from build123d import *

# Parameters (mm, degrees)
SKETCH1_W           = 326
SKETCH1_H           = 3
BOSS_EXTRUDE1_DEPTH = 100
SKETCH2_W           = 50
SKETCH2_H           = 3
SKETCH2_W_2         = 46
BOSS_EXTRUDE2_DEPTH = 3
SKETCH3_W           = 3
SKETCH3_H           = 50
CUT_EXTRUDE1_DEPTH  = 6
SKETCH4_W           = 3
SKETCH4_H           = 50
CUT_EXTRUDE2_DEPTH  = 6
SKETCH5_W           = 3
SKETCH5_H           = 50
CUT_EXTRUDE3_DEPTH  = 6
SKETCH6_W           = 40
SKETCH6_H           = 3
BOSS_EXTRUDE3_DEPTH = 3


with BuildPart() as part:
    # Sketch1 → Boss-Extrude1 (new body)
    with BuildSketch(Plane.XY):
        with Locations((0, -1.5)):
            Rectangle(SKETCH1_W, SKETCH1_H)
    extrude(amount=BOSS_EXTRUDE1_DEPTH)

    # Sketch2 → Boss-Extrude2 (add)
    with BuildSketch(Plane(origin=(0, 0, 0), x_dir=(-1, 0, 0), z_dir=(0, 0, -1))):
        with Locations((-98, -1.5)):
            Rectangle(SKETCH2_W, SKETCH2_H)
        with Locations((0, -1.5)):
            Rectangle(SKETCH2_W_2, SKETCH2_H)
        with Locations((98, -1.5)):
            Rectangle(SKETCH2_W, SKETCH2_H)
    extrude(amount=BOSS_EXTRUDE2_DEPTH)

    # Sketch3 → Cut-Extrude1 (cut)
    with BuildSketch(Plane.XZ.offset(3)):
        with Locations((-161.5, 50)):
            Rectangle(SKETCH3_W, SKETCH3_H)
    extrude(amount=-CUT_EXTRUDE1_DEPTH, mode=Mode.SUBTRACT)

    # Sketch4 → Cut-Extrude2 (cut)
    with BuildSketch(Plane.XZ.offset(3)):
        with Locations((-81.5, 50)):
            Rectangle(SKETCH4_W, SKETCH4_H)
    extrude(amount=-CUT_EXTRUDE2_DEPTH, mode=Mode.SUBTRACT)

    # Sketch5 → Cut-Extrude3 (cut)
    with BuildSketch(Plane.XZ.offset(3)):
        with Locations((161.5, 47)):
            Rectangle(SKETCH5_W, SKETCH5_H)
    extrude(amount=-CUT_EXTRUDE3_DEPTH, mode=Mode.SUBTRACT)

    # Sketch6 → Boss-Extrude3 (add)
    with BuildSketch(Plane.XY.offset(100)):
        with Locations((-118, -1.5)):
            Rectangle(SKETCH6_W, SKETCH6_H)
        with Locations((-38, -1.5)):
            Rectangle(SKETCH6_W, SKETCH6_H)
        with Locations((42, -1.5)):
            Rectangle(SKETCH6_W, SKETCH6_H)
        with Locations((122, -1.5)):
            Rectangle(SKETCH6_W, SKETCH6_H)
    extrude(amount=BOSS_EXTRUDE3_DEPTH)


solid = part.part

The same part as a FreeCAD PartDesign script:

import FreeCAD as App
import Part
import Sketcher

doc = App.newDocument("Part")
params = doc.addObject("Spreadsheet::Sheet", "Params")
for row, (alias, value) in enumerate([
    ("sketch1_width", "326 mm"),
    ("sketch1_height", "3 mm"),
    ("pad1_length", "100 mm"),
    ("sketch2_width", "50 mm"),
    ("sketch2_width2", "46 mm"),
    ("sketch2_height", "3 mm"),
    ("pad2_length", "3 mm"),
    ("sketch3_width", "3 mm"),
    ("sketch3_height", "50 mm"),
    ("pocket1_length", "6 mm"),
    ("sketch4_width", "3 mm"),
    ("sketch4_height", "50 mm"),
    ("pocket2_length", "6 mm"),
    ("sketch5_width", "3 mm"),
    ("sketch5_height", "50 mm"),
    ("pocket3_length", "6 mm"),
    ("sketch6_width", "40 mm"),
    ("sketch6_height", "3 mm"),
    ("pad3_length", "3 mm"),
], start=1):
    params.set(f"A{row}", alias)
    params.set(f"B{row}", "=" + value)
    params.setAlias(f"B{row}", alias)

body = doc.addObject("PartDesign::Body", "Body")

# Sketch on XY plane
sketch1 = doc.addObject("Sketcher::SketchObject", "Sketch")
body.addObject(sketch1)
sketch1.AttachmentSupport = (doc.XY_Plane, [""])
sketch1.MapMode = "FlatFace"
sketch1.addGeometry([
    Part.LineSegment(App.Vector(-163, 0, 0), App.Vector(-163, -3, 0)),
    Part.LineSegment(App.Vector(-163, -3, 0), App.Vector(163, -3, 0)),
    Part.LineSegment(App.Vector(163, -3, 0), App.Vector(163, 0, 0)),
    Part.LineSegment(App.Vector(163, 0, 0), App.Vector(-163, 0, 0)),
], False)
sketch1.addConstraint([
    Sketcher.Constraint("Coincident", 0, 2, 1, 1),
    Sketcher.Constraint("Coincident", 1, 2, 2, 1),
    Sketcher.Constraint("Coincident", 2, 2, 3, 1),
    Sketcher.Constraint("Coincident", 3, 2, 0, 1),
    Sketcher.Constraint("Vertical", 0),
    Sketcher.Constraint("Horizontal", 1),
    Sketcher.Constraint("Vertical", 2),
    Sketcher.Constraint("Horizontal", 3),
    Sketcher.Constraint("Symmetric", 2, 2, 3, 2, -1, 1),
    Sketcher.Constraint("DistanceX", 1, 1, 1, 2, 326.0),
    Sketcher.Constraint("DistanceY", 0, 2, 0, 1, 3.0),
])
sketch1.setExpression("Constraints[9]", "Params.sketch1_width")
sketch1.setExpression("Constraints[10]", "Params.sketch1_height")
pad1 = doc.addObject("PartDesign::Pad", "Pad")
body.addObject(pad1)
pad1.Profile = sketch1
pad1.setExpression("Length", "Params.pad1_length")

# Sketch on XY plane
sketch2 = doc.addObject("Sketcher::SketchObject", "Sketch001")
body.addObject(sketch2)
sketch2.AttachmentSupport = (doc.XY_Plane, [""])
sketch2.MapMode = "FlatFace"
sketch2.addGeometry([
    Part.LineSegment(App.Vector(123, 0, 0), App.Vector(123, -3, 0)),  # 0
    Part.LineSegment(App.Vector(123, -3, 0), App.Vector(73, -3, 0)),  # 1
    Part.LineSegment(App.Vector(73, -3, 0), App.Vector(73, 0, 0)),  # 2
    Part.LineSegment(App.Vector(73, 0, 0), App.Vector(123, 0, 0)),  # 3
    Part.LineSegment(App.Vector(23, 0, 0), App.Vector(23, -3, 0)),  # 4
    Part.LineSegment(App.Vector(23, -3, 0), App.Vector(-23, -3, 0)),  # 5
    Part.LineSegment(App.Vector(-23, -3, 0), App.Vector(-23, 0, 0)),  # 6
    Part.LineSegment(App.Vector(-23, 0, 0), App.Vector(23, 0, 0)),  # 7
    Part.LineSegment(App.Vector(-73, 0, 0), App.Vector(-73, -3, 0)),  # 8
    Part.LineSegment(App.Vector(-73, -3, 0), App.Vector(-123, -3, 0)),  # 9
    Part.LineSegment(App.Vector(-123, -3, 0), App.Vector(-123, 0, 0)),  # 10
    Part.LineSegment(App.Vector(-123, 0, 0), App.Vector(-73, 0, 0)),  # 11
], False)
sketch2.addConstraint([
    Sketcher.Constraint("Coincident", 0, 2, 1, 1),
    Sketcher.Constraint("Coincident", 1, 2, 2, 1),
    Sketcher.Constraint("Coincident", 2, 2, 3, 1),
    Sketcher.Constraint("Coincident", 3, 2, 0, 1),
    Sketcher.Constraint("Coincident", 4, 2, 5, 1),
    Sketcher.Constraint("Coincident", 5, 2, 6, 1),
    Sketcher.Constraint("Coincident", 6, 2, 7, 1),
    Sketcher.Constraint("Coincident", 7, 2, 4, 1),
    Sketcher.Constraint("Coincident", 8, 2, 9, 1),
    Sketcher.Constraint("Coincident", 9, 2, 10, 1),
    Sketcher.Constraint("Coincident", 10, 2, 11, 1),
    Sketcher.Constraint("Coincident", 11, 2, 8, 1),
    Sketcher.Constraint("Vertical", 0),
    Sketcher.Constraint("Horizontal", 1),
    Sketcher.Constraint("Vertical", 2),
    Sketcher.Constraint("Horizontal", 3),
    Sketcher.Constraint("Vertical", 4),
    Sketcher.Constraint("Horizontal", 5),
    Sketcher.Constraint("Vertical", 6),
    Sketcher.Constraint("Horizontal", 7),
    Sketcher.Constraint("Vertical", 8),
    Sketcher.Constraint("Horizontal", 9),
    Sketcher.Constraint("Vertical", 10),
    Sketcher.Constraint("Horizontal", 11),
    Sketcher.Constraint("Symmetric", 6, 2, 7, 2, -1, 1),
    Sketcher.Constraint("Symmetric", 3, 2, 10, 2, -1, 1),
    Sketcher.Constraint("Symmetric", 1, 2, 8, 2, -2),
    Sketcher.Constraint("PointOnObject", 2, 2, -1),
    Sketcher.Constraint("Horizontal", 1, 2, 4, 2),
    Sketcher.Constraint("DistanceX", 1, 2, 1, 1, 50.0),
    Sketcher.Constraint("DistanceX", 5, 2, 5, 1, 46.0),
    Sketcher.Constraint("DistanceY", 0, 2, 0, 1, 3.0),
    Sketcher.Constraint("DistanceX", -1, 1, 0, 2, 123.0),
])
sketch2.setExpression("Constraints[29]", "Params.sketch2_width")
sketch2.setExpression("Constraints[30]", "Params.sketch2_width2")
sketch2.setExpression("Constraints[31]", "Params.sketch2_height")
pad2 = doc.addObject("PartDesign::Pad", "Pad001")
body.addObject(pad2)
pad2.Profile = sketch2
pad2.setExpression("Length", "Params.pad2_length")
pad2.Reversed = True

# Sketch on XZ plane
sketch3 = doc.addObject("Sketcher::SketchObject", "Sketch002")
body.addObject(sketch3)
sketch3.AttachmentSupport = (doc.XZ_Plane, [""])
sketch3.MapMode = "FlatFace"
sketch3.AttachmentOffset = App.Placement(App.Vector(0, 0, 3), App.Rotation())
sketch3.addGeometry([
    Part.LineSegment(App.Vector(-163, 75, 0), App.Vector(-163, 25, 0)),
    Part.LineSegment(App.Vector(-163, 25, 0), App.Vector(-160, 25, 0)),
    Part.LineSegment(App.Vector(-160, 25, 0), App.Vector(-160, 75, 0)),
    Part.LineSegment(App.Vector(-160, 75, 0), App.Vector(-163, 75, 0)),
], False)
sketch3.addConstraint([
    Sketcher.Constraint("Coincident", 0, 2, 1, 1),
    Sketcher.Constraint("Coincident", 1, 2, 2, 1),
    Sketcher.Constraint("Coincident", 2, 2, 3, 1),
    Sketcher.Constraint("Coincident", 3, 2, 0, 1),
    Sketcher.Constraint("Vertical", 0),
    Sketcher.Constraint("Horizontal", 1),
    Sketcher.Constraint("Vertical", 2),
    Sketcher.Constraint("Horizontal", 3),
    Sketcher.Constraint("DistanceX", 1, 1, 1, 2, 3.0),
    Sketcher.Constraint("DistanceY", 0, 2, 0, 1, 50.0),
    Sketcher.Constraint("DistanceX", 0, 2, -1, 1, 163.0),
    Sketcher.Constraint("DistanceY", -1, 1, 0, 2, 25.0),
])
sketch3.setExpression("Constraints[8]", "Params.sketch3_width")
sketch3.setExpression("Constraints[9]", "Params.sketch3_height")
pocket1 = doc.addObject("PartDesign::Pocket", "Pocket")
body.addObject(pocket1)
pocket1.Profile = sketch3
pocket1.setExpression("Length", "Params.pocket1_length")

# Sketch on XZ plane
sketch4 = doc.addObject("Sketcher::SketchObject", "Sketch003")
body.addObject(sketch4)
sketch4.AttachmentSupport = (doc.XZ_Plane, [""])
sketch4.MapMode = "FlatFace"
sketch4.AttachmentOffset = App.Placement(App.Vector(0, 0, 3), App.Rotation())
sketch4.addGeometry([
    Part.LineSegment(App.Vector(-83, 75, 0), App.Vector(-83, 25, 0)),
    Part.LineSegment(App.Vector(-83, 25, 0), App.Vector(-80, 25, 0)),
    Part.LineSegment(App.Vector(-80, 25, 0), App.Vector(-80, 75, 0)),
    Part.LineSegment(App.Vector(-80, 75, 0), App.Vector(-83, 75, 0)),
], False)
sketch4.addConstraint([
    Sketcher.Constraint("Coincident", 0, 2, 1, 1),
    Sketcher.Constraint("Coincident", 1, 2, 2, 1),
    Sketcher.Constraint("Coincident", 2, 2, 3, 1),
    Sketcher.Constraint("Coincident", 3, 2, 0, 1),
    Sketcher.Constraint("Vertical", 0),
    Sketcher.Constraint("Horizontal", 1),
    Sketcher.Constraint("Vertical", 2),
    Sketcher.Constraint("Horizontal", 3),
    Sketcher.Constraint("DistanceX", 1, 1, 1, 2, 3.0),
    Sketcher.Constraint("DistanceY", 0, 2, 0, 1, 50.0),
    Sketcher.Constraint("DistanceX", 0, 2, -1, 1, 83.0),
    Sketcher.Constraint("DistanceY", -1, 1, 0, 2, 25.0),
])
sketch4.setExpression("Constraints[8]", "Params.sketch4_width")
sketch4.setExpression("Constraints[9]", "Params.sketch4_height")
pocket2 = doc.addObject("PartDesign::Pocket", "Pocket001")
body.addObject(pocket2)
pocket2.Profile = sketch4
pocket2.setExpression("Length", "Params.pocket2_length")

# Sketch on XZ plane
sketch5 = doc.addObject("Sketcher::SketchObject", "Sketch004")
body.addObject(sketch5)
sketch5.AttachmentSupport = (doc.XZ_Plane, [""])
sketch5.MapMode = "FlatFace"
sketch5.AttachmentOffset = App.Placement(App.Vector(0, 0, 3), App.Rotation())
sketch5.addGeometry([
    Part.LineSegment(App.Vector(160, 72, 0), App.Vector(160, 22, 0)),
    Part.LineSegment(App.Vector(160, 22, 0), App.Vector(163, 22, 0)),
    Part.LineSegment(App.Vector(163, 22, 0), App.Vector(163, 72, 0)),
    Part.LineSegment(App.Vector(163, 72, 0), App.Vector(160, 72, 0)),
], False)
sketch5.addConstraint([
    Sketcher.Constraint("Coincident", 0, 2, 1, 1),
    Sketcher.Constraint("Coincident", 1, 2, 2, 1),
    Sketcher.Constraint("Coincident", 2, 2, 3, 1),
    Sketcher.Constraint("Coincident", 3, 2, 0, 1),
    Sketcher.Constraint("Vertical", 0),
    Sketcher.Constraint("Horizontal", 1),
    Sketcher.Constraint("Vertical", 2),
    Sketcher.Constraint("Horizontal", 3),
    Sketcher.Constraint("DistanceX", 1, 1, 1, 2, 3.0),
    Sketcher.Constraint("DistanceY", 0, 2, 0, 1, 50.0),
    Sketcher.Constraint("DistanceX", -1, 1, 0, 2, 160.0),
    Sketcher.Constraint("DistanceY", -1, 1, 0, 2, 22.0),
])
sketch5.setExpression("Constraints[8]", "Params.sketch5_width")
sketch5.setExpression("Constraints[9]", "Params.sketch5_height")
pocket3 = doc.addObject("PartDesign::Pocket", "Pocket002")
body.addObject(pocket3)
pocket3.Profile = sketch5
pocket3.setExpression("Length", "Params.pocket3_length")

# Sketch on XY plane
sketch6 = doc.addObject("Sketcher::SketchObject", "Sketch005")
body.addObject(sketch6)
sketch6.AttachmentSupport = (doc.XY_Plane, [""])
sketch6.MapMode = "FlatFace"
sketch6.AttachmentOffset = App.Placement(App.Vector(0, 0, 100), App.Rotation())
sketch6.addGeometry([
    Part.LineSegment(App.Vector(-138, 0, 0), App.Vector(-138, -3, 0)),  # 0
    Part.LineSegment(App.Vector(-138, -3, 0), App.Vector(-98, -3, 0)),  # 1
    Part.LineSegment(App.Vector(-98, -3, 0), App.Vector(-98, 0, 0)),  # 2
    Part.LineSegment(App.Vector(-98, 0, 0), App.Vector(-138, 0, 0)),  # 3
    Part.LineSegment(App.Vector(-58, 0, 0), App.Vector(-58, -3, 0)),  # 4
    Part.LineSegment(App.Vector(-58, -3, 0), App.Vector(-18, -3, 0)),  # 5
    Part.LineSegment(App.Vector(-18, -3, 0), App.Vector(-18, 0, 0)),  # 6
    Part.LineSegment(App.Vector(-18, 0, 0), App.Vector(-58, 0, 0)),  # 7
    Part.LineSegment(App.Vector(22, 0, 0), App.Vector(22, -3, 0)),  # 8
    Part.LineSegment(App.Vector(22, -3, 0), App.Vector(62, -3, 0)),  # 9
    Part.LineSegment(App.Vector(62, -3, 0), App.Vector(62, 0, 0)),  # 10
    Part.LineSegment(App.Vector(62, 0, 0), App.Vector(22, 0, 0)),  # 11
    Part.LineSegment(App.Vector(102, 0, 0), App.Vector(102, -3, 0)),  # 12
    Part.LineSegment(App.Vector(102, -3, 0), App.Vector(142, -3, 0)),  # 13
    Part.LineSegment(App.Vector(142, -3, 0), App.Vector(142, 0, 0)),  # 14
    Part.LineSegment(App.Vector(142, 0, 0), App.Vector(102, 0, 0)),  # 15
], False)
sketch6.addConstraint([
    Sketcher.Constraint("Coincident", 0, 2, 1, 1),
    Sketcher.Constraint("Coincident", 1, 2, 2, 1),
    Sketcher.Constraint("Coincident", 2, 2, 3, 1),
    Sketcher.Constraint("Coincident", 3, 2, 0, 1),
    Sketcher.Constraint("Coincident", 4, 2, 5, 1),
    Sketcher.Constraint("Coincident", 5, 2, 6, 1),
    Sketcher.Constraint("Coincident", 6, 2, 7, 1),
    Sketcher.Constraint("Coincident", 7, 2, 4, 1),
    Sketcher.Constraint("Coincident", 8, 2, 9, 1),
    Sketcher.Constraint("Coincident", 9, 2, 10, 1),
    Sketcher.Constraint("Coincident", 10, 2, 11, 1),
    Sketcher.Constraint("Coincident", 11, 2, 8, 1),
    Sketcher.Constraint("Coincident", 12, 2, 13, 1),
    Sketcher.Constraint("Coincident", 13, 2, 14, 1),
    Sketcher.Constraint("Coincident", 14, 2, 15, 1),
    Sketcher.Constraint("Coincident", 15, 2, 12, 1),
    Sketcher.Constraint("Vertical", 0),
    Sketcher.Constraint("Horizontal", 1),
    Sketcher.Constraint("Vertical", 2),
    Sketcher.Constraint("Horizontal", 3),
    Sketcher.Constraint("Vertical", 4),
    Sketcher.Constraint("Horizontal", 5),
    Sketcher.Constraint("Vertical", 6),
    Sketcher.Constraint("Horizontal", 7),
    Sketcher.Constraint("Vertical", 8),
    Sketcher.Constraint("Horizontal", 9),
    Sketcher.Constraint("Vertical", 10),
    Sketcher.Constraint("Horizontal", 11),
    Sketcher.Constraint("Vertical", 12),
    Sketcher.Constraint("Horizontal", 13),
    Sketcher.Constraint("Vertical", 14),
    Sketcher.Constraint("Horizontal", 15),
    Sketcher.Constraint("PointOnObject", 2, 2, -1),
    Sketcher.Constraint("PointOnObject", 6, 2, -1),
    Sketcher.Constraint("PointOnObject", 10, 2, -1),
    Sketcher.Constraint("PointOnObject", 14, 2, -1),
    Sketcher.Constraint("Horizontal", 1, 2, 4, 2),
    Sketcher.Constraint("Horizontal", 5, 2, 8, 2),
    Sketcher.Constraint("Horizontal", 9, 2, 12, 2),
    Sketcher.Constraint("Equal", 3, 5),
    Sketcher.Constraint("Equal", 7, 9),
    Sketcher.Constraint("Equal", 11, 13),
    Sketcher.Constraint("DistanceX", 1, 1, 1, 2, 40.0),
    Sketcher.Constraint("DistanceY", 0, 2, 0, 1, 3.0),
    Sketcher.Constraint("DistanceX", 0, 2, -1, 1, 138.0),
    Sketcher.Constraint("DistanceX", 4, 2, -1, 1, 58.0),
    Sketcher.Constraint("DistanceX", -1, 1, 8, 2, 22.0),
    Sketcher.Constraint("DistanceX", -1, 1, 12, 2, 102.0),
])
sketch6.setExpression("Constraints[42]", "Params.sketch6_width")
sketch6.setExpression("Constraints[43]", "Params.sketch6_height")
pad3 = doc.addObject("PartDesign::Pad", "Pad002")
body.addObject(pad3)
pad3.Profile = sketch6
pad3.setExpression("Length", "Params.pad3_length")

doc.recompute()
